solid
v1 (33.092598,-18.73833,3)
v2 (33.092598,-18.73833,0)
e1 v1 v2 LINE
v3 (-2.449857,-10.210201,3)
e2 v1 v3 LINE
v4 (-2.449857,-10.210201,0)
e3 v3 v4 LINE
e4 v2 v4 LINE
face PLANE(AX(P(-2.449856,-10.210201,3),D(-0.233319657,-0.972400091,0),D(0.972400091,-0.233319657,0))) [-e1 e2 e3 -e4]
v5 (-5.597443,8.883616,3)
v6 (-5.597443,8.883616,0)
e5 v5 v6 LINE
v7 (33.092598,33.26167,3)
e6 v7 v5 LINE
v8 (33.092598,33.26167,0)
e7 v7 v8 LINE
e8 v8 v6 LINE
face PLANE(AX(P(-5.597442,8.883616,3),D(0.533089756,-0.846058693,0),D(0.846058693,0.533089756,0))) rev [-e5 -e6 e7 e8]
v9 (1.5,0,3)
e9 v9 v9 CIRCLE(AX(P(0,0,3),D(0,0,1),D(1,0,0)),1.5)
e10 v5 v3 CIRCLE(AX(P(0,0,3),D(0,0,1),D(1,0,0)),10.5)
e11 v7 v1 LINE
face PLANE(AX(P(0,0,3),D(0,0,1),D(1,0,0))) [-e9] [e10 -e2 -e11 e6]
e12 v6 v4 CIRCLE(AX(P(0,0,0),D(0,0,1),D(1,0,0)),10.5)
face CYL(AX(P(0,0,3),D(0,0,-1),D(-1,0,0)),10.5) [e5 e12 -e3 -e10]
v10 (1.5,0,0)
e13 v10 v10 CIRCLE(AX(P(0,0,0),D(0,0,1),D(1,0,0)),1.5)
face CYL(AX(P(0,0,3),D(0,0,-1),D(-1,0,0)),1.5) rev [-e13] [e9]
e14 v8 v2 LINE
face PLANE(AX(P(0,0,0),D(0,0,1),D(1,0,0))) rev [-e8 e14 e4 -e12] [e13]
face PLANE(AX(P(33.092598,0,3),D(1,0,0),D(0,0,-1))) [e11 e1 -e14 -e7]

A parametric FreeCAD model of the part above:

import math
import FreeCAD as App
import Part
import Sketcher

doc = App.newDocument("Part")
body = doc.addObject("PartDesign::Body", "Body")

sketch1 = body.newObject("Sketcher::SketchObject", "Sketch")
sketch1.AttachmentSupport = (doc.getObject("XY_Plane"), [""])
sketch1.MapMode = "FlatFace"
sketch1.addGeometry(Part.LineSegment(App.Vector(33.1, 33.3, 0), App.Vector(-5.6, 8.9, 0)), False)
sketch1.addGeometry(Part.ArcOfCircle(Part.Circle(App.Vector(0, 0, 0), App.Vector(0, 0, 1), 10.5), math.radians(122), math.radians(257)), False)
sketch1.addGeometry(Part.LineSegment(App.Vector(-2.4, -10.2, 0), App.Vector(33.1, -18.7, 0)), False)
sketch1.addGeometry(Part.LineSegment(App.Vector(33.1, -18.7, 0), App.Vector(33.1, 33.3, 0)), False)
sketch1.addGeometry(Part.Circle(App.Vector(0, 0, 0), App.Vector(0, 0, 1), 1.5), False)
sketch1.addConstraint(Sketcher.Constraint("Tangent", 0, 2, 1, 1))
sketch1.addConstraint(Sketcher.Constraint("Tangent", 1, 2, 2, 1))
sketch1.addConstraint(Sketcher.Constraint("Coincident", 2, 2, 3, 1))
sketch1.addConstraint(Sketcher.Constraint("Coincident", 3, 2, 0, 1))
sketch1.addConstraint(Sketcher.Constraint("Vertical", 3))
sketch1.addConstraint(Sketcher.Constraint("Coincident", 1, 3, -1, 1))
sketch1.addConstraint(Sketcher.Constraint("Coincident", 4, 3, -1, 1))
sketch1.addConstraint(Sketcher.Constraint("Diameter", 4, 3.000001))
sketch1.addConstraint(Sketcher.Constraint("Radius", 1, 10.5))
sketch1.addConstraint(Sketcher.Constraint("DistanceY", 3, 1, 3, 2, 52.0))
sketch1.addConstraint(Sketcher.Constraint("DistanceY", 1, 2, -1, 1, 10.210201))
sketch1.addConstraint(Sketcher.Constraint("DistanceX", -1, 1, 2, 2, 33.092598))
pad1 = body.newObject("PartDesign::Pad", "Pad")
pad1.Profile = sketch1
pad1.Length = 3

doc.recompute()
